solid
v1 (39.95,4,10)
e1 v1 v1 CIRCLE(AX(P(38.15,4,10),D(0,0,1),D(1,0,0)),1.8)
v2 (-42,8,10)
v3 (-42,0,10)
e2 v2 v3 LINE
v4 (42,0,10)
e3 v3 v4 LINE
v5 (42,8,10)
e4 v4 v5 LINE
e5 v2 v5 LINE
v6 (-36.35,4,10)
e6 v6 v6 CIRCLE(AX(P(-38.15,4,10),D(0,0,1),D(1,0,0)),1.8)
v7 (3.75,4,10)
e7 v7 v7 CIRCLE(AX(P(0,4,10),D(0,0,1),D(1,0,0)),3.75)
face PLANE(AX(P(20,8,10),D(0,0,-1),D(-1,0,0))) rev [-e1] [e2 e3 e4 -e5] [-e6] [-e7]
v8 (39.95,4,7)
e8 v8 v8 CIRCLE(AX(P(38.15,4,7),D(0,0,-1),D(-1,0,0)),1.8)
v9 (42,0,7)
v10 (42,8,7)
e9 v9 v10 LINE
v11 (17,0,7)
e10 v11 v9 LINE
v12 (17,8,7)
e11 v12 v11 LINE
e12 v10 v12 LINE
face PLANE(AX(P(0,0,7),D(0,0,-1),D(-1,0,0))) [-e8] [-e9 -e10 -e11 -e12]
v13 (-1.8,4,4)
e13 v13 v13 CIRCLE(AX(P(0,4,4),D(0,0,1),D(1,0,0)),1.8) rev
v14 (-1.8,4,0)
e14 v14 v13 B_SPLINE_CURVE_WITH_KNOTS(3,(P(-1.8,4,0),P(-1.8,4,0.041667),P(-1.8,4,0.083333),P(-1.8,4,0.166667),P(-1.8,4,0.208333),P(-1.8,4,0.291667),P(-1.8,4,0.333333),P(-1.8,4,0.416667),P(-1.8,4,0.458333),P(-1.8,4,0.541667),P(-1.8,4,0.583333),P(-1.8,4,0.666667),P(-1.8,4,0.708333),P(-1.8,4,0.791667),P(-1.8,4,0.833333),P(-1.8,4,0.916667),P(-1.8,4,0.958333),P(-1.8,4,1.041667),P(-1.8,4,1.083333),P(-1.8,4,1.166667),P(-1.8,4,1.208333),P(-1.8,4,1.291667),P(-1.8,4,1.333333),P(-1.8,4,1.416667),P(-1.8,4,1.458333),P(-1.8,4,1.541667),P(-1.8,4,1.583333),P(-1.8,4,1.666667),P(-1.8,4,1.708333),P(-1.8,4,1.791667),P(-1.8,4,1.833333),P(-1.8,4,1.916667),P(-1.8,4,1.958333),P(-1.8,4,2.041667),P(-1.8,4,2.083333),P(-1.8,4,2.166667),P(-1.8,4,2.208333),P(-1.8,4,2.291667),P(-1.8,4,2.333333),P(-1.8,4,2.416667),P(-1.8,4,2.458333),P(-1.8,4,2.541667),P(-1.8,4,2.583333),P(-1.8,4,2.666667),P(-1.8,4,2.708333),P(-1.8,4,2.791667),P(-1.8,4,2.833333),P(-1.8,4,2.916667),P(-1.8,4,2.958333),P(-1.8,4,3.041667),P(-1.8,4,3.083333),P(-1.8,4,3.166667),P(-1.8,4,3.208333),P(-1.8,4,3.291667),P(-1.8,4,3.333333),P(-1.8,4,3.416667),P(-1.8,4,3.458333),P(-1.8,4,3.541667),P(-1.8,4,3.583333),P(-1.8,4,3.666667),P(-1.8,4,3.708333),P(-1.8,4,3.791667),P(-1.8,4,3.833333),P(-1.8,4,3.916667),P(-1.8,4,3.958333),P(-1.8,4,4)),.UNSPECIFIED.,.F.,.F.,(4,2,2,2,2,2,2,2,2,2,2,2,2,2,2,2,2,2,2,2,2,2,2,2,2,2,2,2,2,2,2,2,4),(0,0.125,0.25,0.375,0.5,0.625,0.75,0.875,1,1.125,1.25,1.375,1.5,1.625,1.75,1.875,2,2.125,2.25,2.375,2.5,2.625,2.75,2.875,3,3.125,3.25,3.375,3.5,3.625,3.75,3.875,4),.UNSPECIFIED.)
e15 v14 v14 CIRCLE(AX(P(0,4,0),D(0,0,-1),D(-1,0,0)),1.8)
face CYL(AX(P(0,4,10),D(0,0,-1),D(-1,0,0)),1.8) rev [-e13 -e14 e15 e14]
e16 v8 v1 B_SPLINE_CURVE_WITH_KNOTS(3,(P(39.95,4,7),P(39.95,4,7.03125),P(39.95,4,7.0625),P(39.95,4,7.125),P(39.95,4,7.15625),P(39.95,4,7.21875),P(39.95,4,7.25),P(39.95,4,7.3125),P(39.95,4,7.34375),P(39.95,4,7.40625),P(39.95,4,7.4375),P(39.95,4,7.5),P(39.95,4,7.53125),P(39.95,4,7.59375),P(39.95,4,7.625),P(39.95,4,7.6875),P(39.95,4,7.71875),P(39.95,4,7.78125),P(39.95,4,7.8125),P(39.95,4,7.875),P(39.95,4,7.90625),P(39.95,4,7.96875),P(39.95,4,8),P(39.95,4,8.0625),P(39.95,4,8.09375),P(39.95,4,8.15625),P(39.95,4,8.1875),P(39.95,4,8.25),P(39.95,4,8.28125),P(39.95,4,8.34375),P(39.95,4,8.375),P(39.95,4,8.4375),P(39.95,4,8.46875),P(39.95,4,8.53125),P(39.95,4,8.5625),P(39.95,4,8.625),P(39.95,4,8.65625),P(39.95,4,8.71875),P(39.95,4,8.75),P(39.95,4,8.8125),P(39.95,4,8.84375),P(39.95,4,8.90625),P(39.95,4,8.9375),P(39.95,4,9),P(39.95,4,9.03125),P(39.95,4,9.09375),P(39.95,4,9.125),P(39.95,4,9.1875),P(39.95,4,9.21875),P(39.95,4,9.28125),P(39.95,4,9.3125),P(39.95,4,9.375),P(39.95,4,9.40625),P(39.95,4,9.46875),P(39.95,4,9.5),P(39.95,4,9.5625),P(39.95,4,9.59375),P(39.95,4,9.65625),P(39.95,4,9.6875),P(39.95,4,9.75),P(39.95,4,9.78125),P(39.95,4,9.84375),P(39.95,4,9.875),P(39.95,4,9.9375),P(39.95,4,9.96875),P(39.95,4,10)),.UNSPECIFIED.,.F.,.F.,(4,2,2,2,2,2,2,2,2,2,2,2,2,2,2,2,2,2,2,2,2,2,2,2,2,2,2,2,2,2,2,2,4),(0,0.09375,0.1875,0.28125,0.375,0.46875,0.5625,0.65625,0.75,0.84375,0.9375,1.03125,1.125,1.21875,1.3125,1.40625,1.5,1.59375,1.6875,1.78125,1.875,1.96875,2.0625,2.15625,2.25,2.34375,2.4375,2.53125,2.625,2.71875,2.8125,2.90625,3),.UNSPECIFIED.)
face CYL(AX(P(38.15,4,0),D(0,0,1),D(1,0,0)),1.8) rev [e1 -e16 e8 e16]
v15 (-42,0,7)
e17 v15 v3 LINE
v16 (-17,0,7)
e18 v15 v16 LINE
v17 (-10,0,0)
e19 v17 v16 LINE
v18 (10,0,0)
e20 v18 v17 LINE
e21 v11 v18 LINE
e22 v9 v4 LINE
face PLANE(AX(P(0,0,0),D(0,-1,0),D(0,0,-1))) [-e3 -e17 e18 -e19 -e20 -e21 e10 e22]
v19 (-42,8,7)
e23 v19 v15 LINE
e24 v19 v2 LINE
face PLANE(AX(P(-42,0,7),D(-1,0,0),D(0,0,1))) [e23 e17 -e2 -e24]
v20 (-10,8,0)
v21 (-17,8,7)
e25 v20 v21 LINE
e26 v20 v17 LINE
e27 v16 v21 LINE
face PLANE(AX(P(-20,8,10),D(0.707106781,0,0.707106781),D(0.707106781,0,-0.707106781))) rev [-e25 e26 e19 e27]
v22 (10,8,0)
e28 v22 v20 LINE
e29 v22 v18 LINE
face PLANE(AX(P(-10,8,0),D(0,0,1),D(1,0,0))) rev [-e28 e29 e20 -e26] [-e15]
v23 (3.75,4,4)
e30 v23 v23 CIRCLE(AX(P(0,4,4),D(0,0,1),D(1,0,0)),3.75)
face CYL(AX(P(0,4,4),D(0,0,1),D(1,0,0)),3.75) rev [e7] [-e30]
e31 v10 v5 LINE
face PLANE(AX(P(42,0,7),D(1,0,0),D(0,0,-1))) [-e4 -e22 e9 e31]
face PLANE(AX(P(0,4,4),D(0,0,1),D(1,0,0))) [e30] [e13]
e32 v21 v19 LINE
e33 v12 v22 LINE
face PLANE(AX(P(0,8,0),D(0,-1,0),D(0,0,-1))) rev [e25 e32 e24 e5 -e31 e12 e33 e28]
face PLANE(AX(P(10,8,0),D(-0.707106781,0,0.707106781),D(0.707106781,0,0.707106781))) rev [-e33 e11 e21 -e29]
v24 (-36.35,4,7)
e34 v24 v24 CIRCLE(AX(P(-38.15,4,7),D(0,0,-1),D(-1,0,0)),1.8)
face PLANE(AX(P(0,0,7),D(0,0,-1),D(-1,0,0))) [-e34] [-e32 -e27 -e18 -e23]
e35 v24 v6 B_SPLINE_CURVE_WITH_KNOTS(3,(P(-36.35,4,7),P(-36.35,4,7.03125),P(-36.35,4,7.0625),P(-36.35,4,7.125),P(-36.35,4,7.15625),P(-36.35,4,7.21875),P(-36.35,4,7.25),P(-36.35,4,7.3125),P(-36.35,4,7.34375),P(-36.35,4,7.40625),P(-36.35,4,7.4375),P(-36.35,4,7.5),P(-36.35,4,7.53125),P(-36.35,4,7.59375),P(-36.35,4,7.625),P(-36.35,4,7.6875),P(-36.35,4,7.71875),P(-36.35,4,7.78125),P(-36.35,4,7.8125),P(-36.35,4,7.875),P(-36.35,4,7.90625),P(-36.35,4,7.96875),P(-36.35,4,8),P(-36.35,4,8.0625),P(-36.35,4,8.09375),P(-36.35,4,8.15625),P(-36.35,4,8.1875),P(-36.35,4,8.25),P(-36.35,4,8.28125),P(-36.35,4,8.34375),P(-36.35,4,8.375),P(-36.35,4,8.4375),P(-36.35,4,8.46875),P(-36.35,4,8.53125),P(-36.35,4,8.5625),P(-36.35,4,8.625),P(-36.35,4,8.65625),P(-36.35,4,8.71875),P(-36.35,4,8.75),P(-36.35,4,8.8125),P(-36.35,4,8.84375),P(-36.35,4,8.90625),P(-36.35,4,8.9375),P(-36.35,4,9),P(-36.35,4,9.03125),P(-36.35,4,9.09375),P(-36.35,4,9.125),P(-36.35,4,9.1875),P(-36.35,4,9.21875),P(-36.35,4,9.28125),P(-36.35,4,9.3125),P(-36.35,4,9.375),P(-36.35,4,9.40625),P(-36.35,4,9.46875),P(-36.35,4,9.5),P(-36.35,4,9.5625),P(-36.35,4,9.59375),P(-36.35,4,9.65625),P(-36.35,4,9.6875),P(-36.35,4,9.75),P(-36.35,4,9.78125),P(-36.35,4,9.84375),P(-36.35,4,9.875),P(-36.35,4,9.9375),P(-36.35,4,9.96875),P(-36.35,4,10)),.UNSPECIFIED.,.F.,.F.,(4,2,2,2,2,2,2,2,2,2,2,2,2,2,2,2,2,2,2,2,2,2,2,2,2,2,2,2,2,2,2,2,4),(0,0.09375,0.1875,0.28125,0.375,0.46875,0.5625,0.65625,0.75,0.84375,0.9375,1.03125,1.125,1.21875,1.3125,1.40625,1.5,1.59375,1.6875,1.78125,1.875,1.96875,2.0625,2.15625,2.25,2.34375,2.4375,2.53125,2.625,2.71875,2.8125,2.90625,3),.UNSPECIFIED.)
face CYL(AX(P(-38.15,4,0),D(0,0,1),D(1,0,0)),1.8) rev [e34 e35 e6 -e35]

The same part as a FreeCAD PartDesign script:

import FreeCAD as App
import Part
import Sketcher
from FreeCAD import Vector
Q = App.Units.Quantity

doc = App.newDocument("Part")
params = doc.addObject("Spreadsheet::Sheet", "Params")
for row, (alias, value) in enumerate([
    ("sketch1_width", "20 mm"),
    ("sketch1_width2", "40 mm"),
    ("pad1_length", "8 mm"),
    ("sketch2_width", "84 mm"),
    ("sketch2_height", "8 mm"),
    ("pad2_length", "3 mm"),
    ("sketch3_diameter", "3.6 mm"),
    ("sketch4_diameter", "3.6 mm"),
    ("sketch5_diameter", "7.5 mm"),
    ("pocket3_length", "6 mm"),
], start=1):
    params.set(f"A{row}", alias)
    params.set(f"B{row}", "=" + value)
    params.setAlias(f"B{row}", alias)

body = doc.addObject("PartDesign::Body", "Body")

# Sketch on XZ plane
sketch1 = body.newObject("Sketcher::SketchObject", "Sketch")
sketch1.AttachmentSupport = (doc.getObject("XZ_Plane"), [""])
sketch1.MapMode = "FlatFace"
sketch1.addGeometry(Part.LineSegment(Vector(10, 0, 0), Vector(-10, 0, 0)), False)
sketch1.addGeometry(Part.LineSegment(Vector(-10, 0, 0), Vector(-20, 10, 0)), False)
sketch1.addGeometry(Part.LineSegment(Vector(-20, 10, 0), Vector(20, 10, 0)), False)
sketch1.addGeometry(Part.LineSegment(Vector(20, 10, 0), Vector(10, 0, 0)), False)
sketch1.addConstraint(Sketcher.Constraint("Coincident", 0, 2, 1, 1))
sketch1.addConstraint(Sketcher.Constraint("Coincident", 1, 2, 2, 1))
sketch1.addConstraint(Sketcher.Constraint("Coincident", 2, 2, 3, 1))
sketch1.addConstraint(Sketcher.Constraint("Coincident", 3, 2, 0, 1))
sketch1.addConstraint(Sketcher.Constraint("Horizontal", 0))
sketch1.addConstraint(Sketcher.Constraint("Horizontal", 2))
sketch1.addConstraint(Sketcher.Constraint("Symmetric", 0, 2, 3, 2, -1, 1))
sketch1.addConstraint(Sketcher.Constraint("Perpendicular", 1, 3))
sketch1.addConstraint(Sketcher.Constraint("Equal", 1, 3))
sketch1.addConstraint(Sketcher.Constraint("DistanceX", 0, 2, 0, 1, Q("20 mm")))
sketch1.addConstraint(Sketcher.Constraint("DistanceX", 2, 1, 2, 2, Q("40 mm")))
sketch1.setExpression("Constraints[9]", "Params.sketch1_width")
sketch1.setExpression("Constraints[10]", "Params.sketch1_width2")
pad1 = body.newObject("PartDesign::Pad", "Pad")
pad1.Profile = sketch1
pad1.setExpression("Length", "Params.pad1_length")
pad1.Reversed = True

# Sketch on XY plane
sketch2 = body.newObject("Sketcher::SketchObject", "Sketch001")
sketch2.AttachmentSupport = (doc.getObject("XY_Plane"), [""])
sketch2.MapMode = "FlatFace"
sketch2.AttachmentOffset = App.Placement(Vector(0, 0, 10), App.Rotation())
sketch2.addGeometry(Part.LineSegment(Vector(-42, 8, 0), Vector(-42, 0, 0)), False)
sketch2.addGeometry(Part.LineSegment(Vector(-42, 0, 0), Vector(42, 0, 0)), False)
sketch2.addGeometry(Part.LineSegment(Vector(42, 0, 0), Vector(42, 8, 0)), False)
sketch2.addGeometry(Part.LineSegment(Vector(42, 8, 0), Vector(-42, 8, 0)), False)
sketch2.addConstraint(Sketcher.Constraint("Coincident", 0, 2, 1, 1))
sketch2.addConstraint(Sketcher.Constraint("Coincident", 1, 2, 2, 1))
sketch2.addConstraint(Sketcher.Constraint("Coincident", 2, 2, 3, 1))
sketch2.addConstraint(Sketcher.Constraint("Coincident", 3, 2, 0, 1))
sketch2.addConstraint(Sketcher.Constraint("Vertical", 0))
sketch2.addConstraint(Sketcher.Constraint("Horizontal", 1))
sketch2.addConstraint(Sketcher.Constraint("Vertical", 2))
sketch2.addConstraint(Sketcher.Constraint("Horizontal", 3))
sketch2.addConstraint(Sketcher.Constraint("Symmetric", 0, 2, 1, 2, -1, 1))
sketch2.addConstraint(Sketcher.Constraint("DistanceX", 1, 1, 1, 2, Q("84 mm")))
sketch2.addConstraint(Sketcher.Constraint("DistanceY", 0, 2, 0, 1, Q("8 mm")))
sketch2.setExpression("Constraints[9]", "Params.sketch2_width")
sketch2.setExpression("Constraints[10]", "Params.sketch2_height")
pad2 = body.newObject("PartDesign::Pad", "Pad001")
pad2.Profile = sketch2
pad2.setExpression("Length", "Params.pad2_length")
pad2.Reversed = True

# Sketch on XY plane
sketch3 = body.newObject("Sketcher::SketchObject", "Sketch002")
sketch3.AttachmentSupport = (doc.getObject("XY_Plane"), [""])
sketch3.MapMode = "FlatFace"
sketch3.AttachmentOffset = App.Placement(Vector(0, 0, 10), App.Rotation())
sketch3.addGeometry(Part.Circle(Vector(-38.1, 4, 0), Vector(0, 0, 1), 1.8), False)
sketch3.addGeometry(Part.Circle(Vector(38.1, 4, 0), Vector(0, 0, 1), 1.8), False)
sketch3.addConstraint(Sketcher.Constraint("Equal", 0, 1))
sketch3.addConstraint(Sketcher.Constraint("Symmetric", 0, 3, 1, 3, -2))
sketch3.addConstraint(Sketcher.Constraint("Diameter", 0, Q("3.6 mm")))
sketch3.addConstraint(Sketcher.Constraint("DistanceY", -1, 1, 0, 3, Q("4 mm")))
sketch3.addConstraint(Sketcher.Constraint("DistanceX", 0, 3, 1, 3, Q("76.3 mm")))
sketch3.setExpression("Constraints[2]", "Params.sketch3_diameter")
pocket1 = body.newObject("PartDesign::Pocket", "Pocket")
pocket1.Profile = sketch3
pocket1.Type = "ThroughAll"

# Sketch on XY plane
sketch4 = body.newObject("Sketcher::SketchObject", "Sketch003")
sketch4.AttachmentSupport = (doc.getObject("XY_Plane"), [""])
sketch4.MapMode = "FlatFace"
sketch4.addGeometry(Part.Circle(Vector(0, 4, 0), Vector(0, 0, 1), 1.8), False)
sketch4.addConstraint(Sketcher.Constraint("PointOnObject", 0, 3, -2))
sketch4.addConstraint(Sketcher.Constraint("Diameter", 0, Q("3.6 mm")))
sketch4.addConstraint(Sketcher.Constraint("DistanceY", -1, 1, 0, 3, Q("4 mm")))
sketch4.setExpression("Constraints[1]", "Params.sketch4_diameter")
pocket2 = body.newObject("PartDesign::Pocket", "Pocket001")
pocket2.Profile = sketch4
pocket2.Type = "ThroughAll"
pocket2.Reversed = True

# Sketch on XY plane
sketch5 = body.newObject("Sketcher::SketchObject", "Sketch004")
sketch5.AttachmentSupport = (doc.getObject("XY_Plane"), [""])
sketch5.MapMode = "FlatFace"
sketch5.AttachmentOffset = App.Placement(Vector(0, 0, 10), App.Rotation())
sketch5.addGeometry(Part.Circle(Vector(0, 4, 0), Vector(0, 0, 1), 3.8), False)
sketch5.addConstraint(Sketcher.Constraint("PointOnObject", 0, 3, -2))
sketch5.addConstraint(Sketcher.Constraint("Diameter", 0, Q("7.5 mm")))
sketch5.addConstraint(Sketcher.Constraint("DistanceY", -1, 1, 0, 3, Q("4 mm")))
sketch5.setExpression("Constraints[1]", "Params.sketch5_diameter")
pocket3 = body.newObject("PartDesign::Pocket", "Pocket002")
pocket3.Profile = sketch5
pocket3.setExpression("Length", "Params.pocket3_length")

doc.recompute()
